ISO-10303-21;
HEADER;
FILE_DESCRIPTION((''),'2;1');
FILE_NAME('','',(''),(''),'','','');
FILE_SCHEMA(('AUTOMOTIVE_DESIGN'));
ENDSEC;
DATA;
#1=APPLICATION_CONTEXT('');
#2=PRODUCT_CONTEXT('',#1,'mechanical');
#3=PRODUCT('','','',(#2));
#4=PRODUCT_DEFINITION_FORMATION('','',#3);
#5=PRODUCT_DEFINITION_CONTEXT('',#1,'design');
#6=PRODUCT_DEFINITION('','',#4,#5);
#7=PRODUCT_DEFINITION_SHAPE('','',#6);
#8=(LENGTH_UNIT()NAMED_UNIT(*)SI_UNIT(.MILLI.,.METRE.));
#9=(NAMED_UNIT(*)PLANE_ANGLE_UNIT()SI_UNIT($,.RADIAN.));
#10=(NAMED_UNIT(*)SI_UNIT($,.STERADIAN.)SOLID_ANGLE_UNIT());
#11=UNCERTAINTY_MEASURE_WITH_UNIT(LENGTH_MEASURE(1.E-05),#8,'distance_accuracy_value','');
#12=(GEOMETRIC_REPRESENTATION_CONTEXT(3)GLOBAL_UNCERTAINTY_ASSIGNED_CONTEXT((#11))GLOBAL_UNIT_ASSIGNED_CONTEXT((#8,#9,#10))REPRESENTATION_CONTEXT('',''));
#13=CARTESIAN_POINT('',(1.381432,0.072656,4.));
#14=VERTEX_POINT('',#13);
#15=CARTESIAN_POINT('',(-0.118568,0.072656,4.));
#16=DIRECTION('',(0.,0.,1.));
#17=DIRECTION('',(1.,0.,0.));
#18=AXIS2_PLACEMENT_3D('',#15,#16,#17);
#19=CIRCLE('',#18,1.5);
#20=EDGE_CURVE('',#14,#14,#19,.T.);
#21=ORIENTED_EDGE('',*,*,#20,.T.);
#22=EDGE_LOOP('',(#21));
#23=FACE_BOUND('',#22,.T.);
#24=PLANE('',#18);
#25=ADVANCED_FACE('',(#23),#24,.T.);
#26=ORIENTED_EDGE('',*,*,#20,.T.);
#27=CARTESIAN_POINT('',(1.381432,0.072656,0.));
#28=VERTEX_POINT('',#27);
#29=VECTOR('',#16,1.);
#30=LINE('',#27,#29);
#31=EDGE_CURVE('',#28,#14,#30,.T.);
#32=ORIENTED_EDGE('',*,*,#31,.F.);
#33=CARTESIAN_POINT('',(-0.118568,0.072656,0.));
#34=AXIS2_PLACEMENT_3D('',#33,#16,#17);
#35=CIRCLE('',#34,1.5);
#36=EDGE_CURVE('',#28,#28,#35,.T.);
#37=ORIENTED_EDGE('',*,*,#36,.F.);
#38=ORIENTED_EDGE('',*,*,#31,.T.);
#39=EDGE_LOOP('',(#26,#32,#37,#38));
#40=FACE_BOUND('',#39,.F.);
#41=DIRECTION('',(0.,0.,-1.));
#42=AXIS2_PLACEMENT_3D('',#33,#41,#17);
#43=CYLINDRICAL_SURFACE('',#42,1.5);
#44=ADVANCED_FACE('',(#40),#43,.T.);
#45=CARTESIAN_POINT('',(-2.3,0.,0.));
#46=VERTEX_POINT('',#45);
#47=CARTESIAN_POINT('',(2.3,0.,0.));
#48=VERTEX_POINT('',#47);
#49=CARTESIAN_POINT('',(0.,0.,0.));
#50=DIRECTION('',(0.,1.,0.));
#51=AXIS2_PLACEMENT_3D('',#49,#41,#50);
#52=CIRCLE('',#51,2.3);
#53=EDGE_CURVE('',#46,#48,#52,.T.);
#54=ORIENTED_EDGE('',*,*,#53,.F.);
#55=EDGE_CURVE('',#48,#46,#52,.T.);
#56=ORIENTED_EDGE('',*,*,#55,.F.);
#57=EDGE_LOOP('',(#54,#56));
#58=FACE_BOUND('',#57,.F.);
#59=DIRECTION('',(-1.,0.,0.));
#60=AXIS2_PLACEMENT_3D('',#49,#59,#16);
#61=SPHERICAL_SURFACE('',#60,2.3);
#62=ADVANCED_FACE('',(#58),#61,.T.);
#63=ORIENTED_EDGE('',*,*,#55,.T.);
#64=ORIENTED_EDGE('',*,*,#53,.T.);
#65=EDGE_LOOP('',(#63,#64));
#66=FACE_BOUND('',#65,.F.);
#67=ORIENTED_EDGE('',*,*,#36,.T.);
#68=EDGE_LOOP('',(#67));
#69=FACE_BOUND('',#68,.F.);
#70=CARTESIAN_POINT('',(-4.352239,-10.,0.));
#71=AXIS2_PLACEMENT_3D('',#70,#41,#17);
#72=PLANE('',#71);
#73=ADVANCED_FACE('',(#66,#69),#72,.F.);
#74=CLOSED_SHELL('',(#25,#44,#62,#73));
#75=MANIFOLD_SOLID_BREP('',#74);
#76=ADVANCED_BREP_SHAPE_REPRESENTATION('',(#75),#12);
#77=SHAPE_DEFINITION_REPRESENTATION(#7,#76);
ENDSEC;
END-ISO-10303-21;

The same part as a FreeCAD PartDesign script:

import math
import FreeCAD as App
import Part
import Sketcher
from FreeCAD import Vector

doc = App.newDocument("Part")
body = doc.addObject("PartDesign::Body", "Body")

sketch1 = body.newObject("Sketcher::SketchObject", "Sketch")
sketch1.AttachmentSupport = (doc.getObject("XZ_Plane"), [""])
sketch1.MapMode = "FlatFace"
sketch1.addGeometry(Part.LineSegment(Vector(-2.3, 0, 0), Vector(2.3, 0, 0)), False)
sketch1.addGeometry(Part.ArcOfCircle(Part.Circle(Vector(0, 0, 0), Vector(0, 0, 1), 2.3), math.radians(0), math.radians(180)), False)
sketch1.addConstraint(Sketcher.Constraint("Coincident", 0, 1, 1, 2))
sketch1.addConstraint(Sketcher.Constraint("Coincident", 1, 1, 0, 2))
sketch1.addConstraint(Sketcher.Constraint("Horizontal", 0))
sketch1.addConstraint(Sketcher.Constraint("Coincident", 1, 3, -1, 1))
sketch1.addConstraint(Sketcher.Constraint("PointOnObject", 0, 1, -1))
sketch1.addConstraint(Sketcher.Constraint("Radius", 1, 2.3))
revolution = body.newObject("PartDesign::Revolution", "Revolution")
revolution.Profile = sketch1
revolution.ReferenceAxis = (sketch1, ["H_Axis"])
revolution.Angle = 360

sketch2 = body.newObject("Sketcher::SketchObject", "Sketch001")
sketch2.AttachmentSupport = (doc.getObject("XZ_Plane"), [""])
sketch2.MapMode = "FlatFace"
sketch2.AttachmentOffset = App.Placement(Vector(0, 0, 10), App.Rotation())
sketch2.addGeometry(Part.LineSegment(Vector(-4.4, 4.6, 0), Vector(-4.4, 0, 0)), False)
sketch2.addGeometry(Part.LineSegment(Vector(-4.4, 0, 0), Vector(5.6, 0, 0)), False)
sketch2.addGeometry(Part.LineSegment(Vector(5.6, 0, 0), Vector(5.6, 4.6, 0)), False)
sketch2.addGeometry(Part.LineSegment(Vector(5.6, 4.6, 0), Vector(-4.4, 4.6, 0)), False)
sketch2.addConstraint(Sketcher.Constraint("Coincident", 0, 2, 1, 1))
sketch2.addConstraint(Sketcher.Constraint("Coincident", 1, 2, 2, 1))
sketch2.addConstraint(Sketcher.Constraint("Coincident", 2, 2, 3, 1))
sketch2.addConstraint(Sketcher.Constraint("Coincident", 3, 2, 0, 1))
sketch2.addConstraint(Sketcher.Constraint("Vertical", 0))
sketch2.addConstraint(Sketcher.Constraint("Horizontal", 1))
sketch2.addConstraint(Sketcher.Constraint("Vertical", 2))
sketch2.addConstraint(Sketcher.Constraint("Horizontal", 3))
sketch2.addConstraint(Sketcher.Constraint("PointOnObject", 0, 2, -1))
sketch2.addConstraint(Sketcher.Constraint("DistanceX", 1, 1, 1, 2, 10.0))
sketch2.addConstraint(Sketcher.Constraint("DistanceY", 0, 2, 0, 1, 4.645669))
sketch2.addConstraint(Sketcher.Constraint("DistanceX", 0, 2, -1, 1, 4.352239))
pocket1 = body.newObject("PartDesign::Pocket", "Pocket")
pocket1.Profile = sketch2
pocket1.Length = 25

sketch3 = body.newObject("Sketcher::SketchObject", "Sketch002")
sketch3.AttachmentSupport = (doc.getObject("XY_Plane"), [""])
sketch3.MapMode = "FlatFace"
sketch3.addGeometry(Part.Circle(Vector(-0.1, 0.1, 0), Vector(0, 0, 1), 1.5), False)
sketch3.addConstraint(Sketcher.Constraint("Diameter", 0, 3.0))
sketch3.addConstraint(Sketcher.Constraint("DistanceX", 0, 3, -1, 1, 0.118568))
sketch3.addConstraint(Sketcher.Constraint("DistanceY", -1, 1, 0, 3, 0.072656))
pad1 = body.newObject("PartDesign::Pad", "Pad")
pad1.Profile = sketch3
pad1.Length = 4

doc.recompute()
